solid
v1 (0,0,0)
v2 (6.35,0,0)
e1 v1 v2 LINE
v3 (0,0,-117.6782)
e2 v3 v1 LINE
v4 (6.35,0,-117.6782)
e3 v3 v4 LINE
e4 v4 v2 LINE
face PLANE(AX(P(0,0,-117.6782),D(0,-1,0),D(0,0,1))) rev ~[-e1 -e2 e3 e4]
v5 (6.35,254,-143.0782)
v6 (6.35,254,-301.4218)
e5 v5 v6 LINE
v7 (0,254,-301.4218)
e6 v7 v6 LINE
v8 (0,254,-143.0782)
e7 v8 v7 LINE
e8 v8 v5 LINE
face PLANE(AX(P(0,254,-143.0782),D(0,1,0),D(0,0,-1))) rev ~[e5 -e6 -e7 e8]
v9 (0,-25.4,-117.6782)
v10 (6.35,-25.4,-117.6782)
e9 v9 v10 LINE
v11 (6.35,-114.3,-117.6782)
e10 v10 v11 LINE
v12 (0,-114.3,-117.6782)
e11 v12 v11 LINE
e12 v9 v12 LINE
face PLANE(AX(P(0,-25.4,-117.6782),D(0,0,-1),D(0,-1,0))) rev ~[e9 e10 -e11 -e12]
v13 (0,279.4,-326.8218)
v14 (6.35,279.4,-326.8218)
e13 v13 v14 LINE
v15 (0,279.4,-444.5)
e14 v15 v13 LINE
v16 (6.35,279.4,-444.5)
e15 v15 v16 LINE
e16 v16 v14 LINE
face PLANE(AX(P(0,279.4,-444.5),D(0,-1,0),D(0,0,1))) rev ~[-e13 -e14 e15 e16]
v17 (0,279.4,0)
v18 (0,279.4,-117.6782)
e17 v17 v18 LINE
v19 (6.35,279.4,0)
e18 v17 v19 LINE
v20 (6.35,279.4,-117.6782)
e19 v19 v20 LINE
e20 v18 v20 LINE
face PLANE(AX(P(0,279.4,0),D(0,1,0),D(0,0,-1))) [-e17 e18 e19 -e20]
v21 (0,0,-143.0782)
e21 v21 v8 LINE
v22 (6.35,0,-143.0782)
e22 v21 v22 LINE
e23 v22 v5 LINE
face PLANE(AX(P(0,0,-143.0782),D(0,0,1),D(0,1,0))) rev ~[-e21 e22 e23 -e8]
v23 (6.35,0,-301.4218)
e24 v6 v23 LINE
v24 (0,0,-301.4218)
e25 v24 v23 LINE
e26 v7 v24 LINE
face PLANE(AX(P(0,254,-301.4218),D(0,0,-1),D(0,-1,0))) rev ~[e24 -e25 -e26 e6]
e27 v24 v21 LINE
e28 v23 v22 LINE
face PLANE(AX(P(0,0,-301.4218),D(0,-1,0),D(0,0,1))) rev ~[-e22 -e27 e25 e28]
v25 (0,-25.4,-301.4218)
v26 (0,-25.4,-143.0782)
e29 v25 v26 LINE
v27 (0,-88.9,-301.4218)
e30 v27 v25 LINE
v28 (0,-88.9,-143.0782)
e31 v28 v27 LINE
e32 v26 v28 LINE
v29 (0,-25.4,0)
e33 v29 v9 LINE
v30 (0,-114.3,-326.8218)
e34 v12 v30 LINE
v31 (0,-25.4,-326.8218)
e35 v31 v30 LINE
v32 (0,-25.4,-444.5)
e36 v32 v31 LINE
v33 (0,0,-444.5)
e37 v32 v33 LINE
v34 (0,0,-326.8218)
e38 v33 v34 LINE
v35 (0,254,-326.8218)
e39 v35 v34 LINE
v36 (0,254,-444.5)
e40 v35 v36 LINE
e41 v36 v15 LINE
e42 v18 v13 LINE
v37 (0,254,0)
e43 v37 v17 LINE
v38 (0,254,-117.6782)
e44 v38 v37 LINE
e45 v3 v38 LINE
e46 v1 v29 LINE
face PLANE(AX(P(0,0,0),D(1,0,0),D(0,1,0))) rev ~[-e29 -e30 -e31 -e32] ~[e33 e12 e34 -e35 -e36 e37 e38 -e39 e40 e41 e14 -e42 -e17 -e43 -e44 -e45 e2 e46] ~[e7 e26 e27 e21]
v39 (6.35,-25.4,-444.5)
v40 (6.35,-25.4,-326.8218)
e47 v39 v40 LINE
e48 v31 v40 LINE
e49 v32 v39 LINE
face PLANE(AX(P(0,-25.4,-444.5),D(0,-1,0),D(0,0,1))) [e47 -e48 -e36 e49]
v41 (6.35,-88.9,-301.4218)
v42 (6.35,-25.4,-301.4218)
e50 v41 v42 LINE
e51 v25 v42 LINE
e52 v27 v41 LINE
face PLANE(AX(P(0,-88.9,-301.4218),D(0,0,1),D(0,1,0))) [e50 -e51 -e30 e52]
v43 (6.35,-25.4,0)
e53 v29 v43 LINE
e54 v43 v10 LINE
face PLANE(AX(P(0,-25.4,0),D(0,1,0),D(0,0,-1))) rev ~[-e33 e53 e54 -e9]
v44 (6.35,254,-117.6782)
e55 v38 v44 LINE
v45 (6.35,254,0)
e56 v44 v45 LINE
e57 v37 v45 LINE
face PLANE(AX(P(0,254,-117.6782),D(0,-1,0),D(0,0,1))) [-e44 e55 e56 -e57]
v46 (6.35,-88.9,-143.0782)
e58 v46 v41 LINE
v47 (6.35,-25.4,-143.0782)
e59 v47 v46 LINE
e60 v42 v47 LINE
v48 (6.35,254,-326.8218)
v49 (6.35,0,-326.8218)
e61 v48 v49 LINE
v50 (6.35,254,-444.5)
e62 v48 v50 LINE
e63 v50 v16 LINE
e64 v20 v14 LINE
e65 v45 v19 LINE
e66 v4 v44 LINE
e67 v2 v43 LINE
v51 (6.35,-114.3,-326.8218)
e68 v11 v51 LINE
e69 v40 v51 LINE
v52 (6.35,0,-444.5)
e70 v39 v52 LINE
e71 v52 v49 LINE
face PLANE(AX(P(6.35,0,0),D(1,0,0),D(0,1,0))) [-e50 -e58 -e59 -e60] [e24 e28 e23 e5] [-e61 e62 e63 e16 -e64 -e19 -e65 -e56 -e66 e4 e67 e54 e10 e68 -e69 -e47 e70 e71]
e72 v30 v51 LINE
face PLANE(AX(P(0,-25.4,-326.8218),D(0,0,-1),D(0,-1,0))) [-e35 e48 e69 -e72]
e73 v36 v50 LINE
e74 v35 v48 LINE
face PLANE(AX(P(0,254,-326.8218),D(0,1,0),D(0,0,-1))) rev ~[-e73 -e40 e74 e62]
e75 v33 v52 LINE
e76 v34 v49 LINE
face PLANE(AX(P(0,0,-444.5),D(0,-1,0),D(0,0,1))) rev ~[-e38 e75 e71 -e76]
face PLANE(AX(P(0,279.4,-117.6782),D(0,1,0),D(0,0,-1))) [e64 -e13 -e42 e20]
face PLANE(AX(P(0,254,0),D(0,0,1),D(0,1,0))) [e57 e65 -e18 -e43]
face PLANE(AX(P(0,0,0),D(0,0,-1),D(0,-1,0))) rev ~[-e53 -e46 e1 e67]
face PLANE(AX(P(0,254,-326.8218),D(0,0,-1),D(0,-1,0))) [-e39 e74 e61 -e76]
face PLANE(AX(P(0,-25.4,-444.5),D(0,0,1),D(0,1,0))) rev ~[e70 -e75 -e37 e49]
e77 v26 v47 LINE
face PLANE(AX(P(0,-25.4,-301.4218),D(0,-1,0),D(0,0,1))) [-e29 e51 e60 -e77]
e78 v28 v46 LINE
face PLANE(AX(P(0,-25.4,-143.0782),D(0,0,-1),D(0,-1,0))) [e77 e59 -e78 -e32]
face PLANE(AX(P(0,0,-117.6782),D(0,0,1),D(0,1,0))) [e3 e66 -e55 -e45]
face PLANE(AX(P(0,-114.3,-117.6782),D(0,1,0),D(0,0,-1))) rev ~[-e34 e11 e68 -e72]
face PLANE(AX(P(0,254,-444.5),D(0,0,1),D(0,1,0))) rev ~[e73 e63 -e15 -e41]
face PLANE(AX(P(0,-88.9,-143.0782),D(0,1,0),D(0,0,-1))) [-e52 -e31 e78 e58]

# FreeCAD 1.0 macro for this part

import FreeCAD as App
import Part
import Sketcher
from FreeCAD import Vector
Q = App.Units.Quantity

doc = App.newDocument("Part")
params = doc.addObject("Spreadsheet::Sheet", "Params")
for row, (alias, value) in enumerate([
    ("sketch1_width", "1 in"),
    ("sketch1_width2", "10 in"),
    ("sketch1_width3", "3.5 in"),
    ("sketch1_width4", "2.5 in"),
    ("sketch1_height", "17.5 in"),
    ("pad1_length", "0.25 in"),
], start=1):
    params.set(f"A{row}", alias)
    params.set(f"B{row}", "=" + value)
    params.setAlias(f"B{row}", alias)

body = doc.addObject("PartDesign::Body", "Body")

sketch1 = body.newObject("Sketcher::SketchObject", "Sketch")
sketch1.AttachmentSupport = (doc.getObject("YZ_Plane"), [""])
sketch1.MapMode = "FlatFace"
sketch1.addGeometry([
    Part.LineSegment(Vector(0, -117.6782, 0), Vector(0, 0, 0)),
    Part.LineSegment(Vector(0, 0, 0), Vector(-25.4, 0, 0)),
    Part.LineSegment(Vector(-25.4, 0, 0), Vector(-25.4, -117.6782, 0)),
    Part.LineSegment(Vector(-25.4, -117.6782, 0), Vector(-114.3, -117.6782, 0)),
    Part.LineSegment(Vector(-114.3, -117.6782, 0), Vector(-114.3, -326.8218, 0)),
    Part.LineSegment(Vector(-114.3, -326.8218, 0), Vector(-25.4, -326.8218, 0)),
    Part.LineSegment(Vector(-25.4, -326.8218, 0), Vector(-25.4, -444.5, 0)),
    Part.LineSegment(Vector(-25.4, -444.5, 0), Vector(0, -444.5, 0)),
    Part.LineSegment(Vector(0, -444.5, 0), Vector(0, -326.8218, 0)),
    Part.LineSegment(Vector(0, -326.8218, 0), Vector(254, -326.8218, 0)),
    Part.LineSegment(Vector(254, -326.8218, 0), Vector(254, -444.5, 0)),
    Part.LineSegment(Vector(254, -444.5, 0), Vector(279.4, -444.5, 0)),
    Part.LineSegment(Vector(279.4, -444.5, 0), Vector(279.4, 0, 0)),
    Part.LineSegment(Vector(279.4, 0, 0), Vector(254, 0, 0)),
    Part.LineSegment(Vector(254, 0, 0), Vector(254, -117.6782, 0)),
    Part.LineSegment(Vector(254, -117.6782, 0), Vector(0, -117.6782, 0)),
    Part.LineSegment(Vector(-88.9, -143.0782, 0), Vector(-25.4, -143.0782, 0)),
    Part.LineSegment(Vector(-25.4, -143.0782, 0), Vector(-25.4, -301.4218, 0)),
    Part.LineSegment(Vector(-25.4, -301.4218, 0), Vector(-88.9, -301.4218, 0)),
    Part.LineSegment(Vector(-88.9, -301.4218, 0), Vector(-88.9, -143.0782, 0)),
    Part.LineSegment(Vector(0, -301.4218, 0), Vector(0, -143.0782, 0)),
    Part.LineSegment(Vector(0, -143.0782, 0), Vector(254, -143.0782, 0)),
    Part.LineSegment(Vector(254, -143.0782, 0), Vector(254, -301.4218, 0)),
    Part.LineSegment(Vector(254, -301.4218, 0), Vector(0, -301.4218, 0)),
], False)
sketch1.addConstraint([
    Sketcher.Constraint("Coincident", 0, 2, 1, 1),
    Sketcher.Constraint("Coincident", 1, 2, 2, 1),
    Sketcher.Constraint("Coincident", 2, 2, 3, 1),
    Sketcher.Constraint("Coincident", 3, 2, 4, 1),
    Sketcher.Constraint("Coincident", 4, 2, 5, 1),
    Sketcher.Constraint("Coincident", 5, 2, 6, 1),
    Sketcher.Constraint("Coincident", 6, 2, 7, 1),
    Sketcher.Constraint("Coincident", 7, 2, 8, 1),
    Sketcher.Constraint("Coincident", 8, 2, 9, 1),
    Sketcher.Constraint("Coincident", 9, 2, 10, 1),
    Sketcher.Constraint("Coincident", 10, 2, 11, 1),
    Sketcher.Constraint("Coincident", 11, 2, 12, 1),
    Sketcher.Constraint("Coincident", 12, 2, 13, 1),
    Sketcher.Constraint("Coincident", 13, 2, 14, 1),
    Sketcher.Constraint("Coincident", 14, 2, 15, 1),
    Sketcher.Constraint("Coincident", 15, 2, 0, 1),
    Sketcher.Constraint("Coincident", 16, 2, 17, 1),
    Sketcher.Constraint("Coincident", 17, 2, 18, 1),
    Sketcher.Constraint("Coincident", 18, 2, 19, 1),
    Sketcher.Constraint("Coincident", 19, 2, 16, 1),
    Sketcher.Constraint("Coincident", 20, 2, 21, 1),
    Sketcher.Constraint("Coincident", 21, 2, 22, 1),
    Sketcher.Constraint("Coincident", 22, 2, 23, 1),
    Sketcher.Constraint("Coincident", 23, 2, 20, 1),
    Sketcher.Constraint("Vertical", 0),
    Sketcher.Constraint("Horizontal", 1),
    Sketcher.Constraint("Vertical", 2),
    Sketcher.Constraint("Horizontal", 3),
    Sketcher.Constraint("Vertical", 4),
    Sketcher.Constraint("Horizontal", 5),
    Sketcher.Constraint("Vertical", 6),
    Sketcher.Constraint("Horizontal", 7),
    Sketcher.Constraint("Vertical", 8),
    Sketcher.Constraint("Horizontal", 9),
    Sketcher.Constraint("Vertical", 10),
    Sketcher.Constraint("Horizontal", 11),
    Sketcher.Constraint("Vertical", 12),
    Sketcher.Constraint("Horizontal", 13),
    Sketcher.Constraint("Vertical", 14),
    Sketcher.Constraint("Horizontal", 15),
    Sketcher.Constraint("Horizontal", 16),
    Sketcher.Constraint("Vertical", 17),
    Sketcher.Constraint("Horizontal", 18),
    Sketcher.Constraint("Vertical", 19),
    Sketcher.Constraint("Vertical", 20),
    Sketcher.Constraint("Horizontal", 21),
    Sketcher.Constraint("Vertical", 22),
    Sketcher.Constraint("Horizontal", 23),
    Sketcher.Constraint("Coincident", 0, 2, -1, 1),
    Sketcher.Constraint("PointOnObject", 7, 2, -2),
    Sketcher.Constraint("PointOnObject", 12, 2, -1),
    Sketcher.Constraint("PointOnObject", 20, 2, -2),
    Sketcher.Constraint("Horizontal", 5, 2, 8, 2),
    Sketcher.Constraint("Horizontal", 7, 2, 10, 2),
    Sketcher.Constraint("Horizontal", 3, 2, 14, 2),
    Sketcher.Constraint("Horizontal", 19, 2, 20, 2),
    Sketcher.Constraint("Horizontal", 18, 2, 22, 2),
    Sketcher.Constraint("Vertical", 2, 2, 5, 2),
    Sketcher.Constraint("Vertical", 10, 2, 13, 2),
    Sketcher.Constraint("Vertical", 6, 2, 16, 2),
    Sketcher.Constraint("Vertical", 14, 2, 21, 2),
    Sketcher.Constraint("Equal", 7, 11),
    Sketcher.Constraint("Equal", 2, 6),
    Sketcher.Constraint("DistanceX", 1, 2, 1, 1, Q("1 in")),
    Sketcher.Constraint("DistanceX", 9, 1, 9, 2, Q("10 in")),
    Sketcher.Constraint("DistanceX", 3, 2, 3, 1, Q("3.5 in")),
    Sketcher.Constraint("DistanceX", 16, 1, 16, 2, Q("2.5 in")),
    Sketcher.Constraint("DistanceY", 12, 1, 12, 2, Q("17.5 in")),
    Sketcher.Constraint("DistanceY", 16, 2, 2, 2, Q("1 in")),
    Sketcher.Constraint("DistanceY", 5, 2, 17, 2, Q("1 in")),
    Sketcher.Constraint("DistanceY", 0, 1, 0, 2, Q("4.633 in")),
])
sketch1.setExpression("Constraints[63]", "Params.sketch1_width")
sketch1.setExpression("Constraints[64]", "Params.sketch1_width2")
sketch1.setExpression("Constraints[65]", "Params.sketch1_width3")
sketch1.setExpression("Constraints[66]", "Params.sketch1_width4")
sketch1.setExpression("Constraints[67]", "Params.sketch1_height")
pad1 = body.newObject("PartDesign::Pad", "Pad")
pad1.Profile = sketch1
pad1.setExpression("Length", "Params.pad1_length")

doc.recompute()
